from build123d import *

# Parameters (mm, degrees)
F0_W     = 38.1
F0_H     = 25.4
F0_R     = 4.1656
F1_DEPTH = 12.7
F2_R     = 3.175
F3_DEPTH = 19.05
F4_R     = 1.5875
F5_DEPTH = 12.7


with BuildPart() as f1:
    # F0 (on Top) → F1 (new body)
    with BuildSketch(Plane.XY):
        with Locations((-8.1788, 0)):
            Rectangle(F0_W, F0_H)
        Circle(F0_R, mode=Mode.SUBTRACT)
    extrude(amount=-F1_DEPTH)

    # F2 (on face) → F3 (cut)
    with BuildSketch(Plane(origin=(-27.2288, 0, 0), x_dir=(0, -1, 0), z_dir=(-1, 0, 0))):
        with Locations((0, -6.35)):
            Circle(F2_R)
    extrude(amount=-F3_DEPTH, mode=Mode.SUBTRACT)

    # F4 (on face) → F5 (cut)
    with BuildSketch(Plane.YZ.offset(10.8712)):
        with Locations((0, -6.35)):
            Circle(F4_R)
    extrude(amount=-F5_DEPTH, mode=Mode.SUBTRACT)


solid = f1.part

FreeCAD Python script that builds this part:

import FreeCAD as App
import Part
import Sketcher
Q = App.Units.Quantity

doc = App.newDocument("Part")
body = doc.addObject("PartDesign::Body", "Body")

sketch1 = doc.addObject("Sketcher::SketchObject", "Sketch")
body.addObject(sketch1)
sketch1.AttachmentSupport = (doc.XY_Plane, [""])
sketch1.MapMode = "FlatFace"
sketch1.addGeometry([
    Part.LineSegment(App.Vector(-27.2, 12.7, 0), App.Vector(-27.2, -12.7, 0)),
    Part.LineSegment(App.Vector(-27.2, -12.7, 0), App.Vector(10.9, -12.7, 0)),
    Part.LineSegment(App.Vector(10.9, -12.7, 0), App.Vector(10.9, 12.7, 0)),
    Part.LineSegment(App.Vector(10.9, 12.7, 0), App.Vector(-27.2, 12.7, 0)),
    Part.Circle(App.Vector(0, 0, 0), App.Vector(0, 0, 1), 4.2),
], False)
sketch1.addConstraint([
    Sketcher.Constraint("Coincident", 0, 2, 1, 1),
    Sketcher.Constraint("Coincident", 1, 2, 2, 1),
    Sketcher.Constraint("Coincident", 2, 2, 3, 1),
    Sketcher.Constraint("Coincident", 3, 2, 0, 1),
    Sketcher.Constraint("Vertical", 0),
    Sketcher.Constraint("Horizontal", 1),
    Sketcher.Constraint("Vertical", 2),
    Sketcher.Constraint("Horizontal", 3),
    Sketcher.Constraint("Coincident", 4, 3, -1, 1),
    Sketcher.Constraint("DistanceY", 0, 2, 0, 1, Q("1 in")),
    Sketcher.Constraint("Diameter", 4, Q("0.328 in")),
    Sketcher.Constraint("DistanceX", 1, 1, 1, 2, Q("1.5 in")),
    Sketcher.Constraint("DistanceY", 0, 2, -1, 1, Q("0.5 in")),
    Sketcher.Constraint("DistanceX", 0, 2, -1, 1, Q("1.072 in")),
])
pad1 = doc.addObject("PartDesign::Pad", "Pad")
body.addObject(pad1)
pad1.Profile = sketch1
pad1.Length = Q("0.5 in")
pad1.Reversed = True

sketch2 = doc.addObject("Sketcher::SketchObject", "Sketch001")
body.addObject(sketch2)
sketch2.AttachmentSupport = (doc.YZ_Plane, [""])
sketch2.MapMode = "FlatFace"
sketch2.AttachmentOffset = App.Placement(App.Vector(0, 0, -1.072 * 25.4), App.Rotation())
sketch2.addGeometry(Part.Circle(App.Vector(0, -6.3, 0), App.Vector(0, 0, 1), 3.2), False)
sketch2.addConstraint([
    Sketcher.Constraint("PointOnObject", 0, 3, -2),
    Sketcher.Constraint("Diameter", 0, Q("0.25 in")),
    Sketcher.Constraint("DistanceY", 0, 3, -1, 1, Q("0.25 in")),
])
pocket1 = doc.addObject("PartDesign::Pocket", "Pocket")
body.addObject(pocket1)
pocket1.Profile = sketch2
pocket1.Length = Q("0.75 in")
pocket1.Reversed = True

sketch3 = doc.addObject("Sketcher::SketchObject", "Sketch002")
body.addObject(sketch3)
sketch3.AttachmentSupport = (doc.YZ_Plane, [""])
sketch3.MapMode = "FlatFace"
sketch3.AttachmentOffset = App.Placement(App.Vector(0, 0, 0.428 * 25.4), App.Rotation())
sketch3.addGeometry(Part.Circle(App.Vector(0, -6.3, 0), App.Vector(0, 0, 1), 1.6), False)
sketch3.addConstraint([
    Sketcher.Constraint("PointOnObject", 0, 3, -2),
    Sketcher.Constraint("Diameter", 0, Q("0.125 in")),
    Sketcher.Constraint("DistanceY", 0, 3, -1, 1, Q("0.25 in")),
])
pocket2 = doc.addObject("PartDesign::Pocket", "Pocket001")
body.addObject(pocket2)
pocket2.Profile = sketch3
pocket2.Length = Q("0.5 in")

doc.recompute()
